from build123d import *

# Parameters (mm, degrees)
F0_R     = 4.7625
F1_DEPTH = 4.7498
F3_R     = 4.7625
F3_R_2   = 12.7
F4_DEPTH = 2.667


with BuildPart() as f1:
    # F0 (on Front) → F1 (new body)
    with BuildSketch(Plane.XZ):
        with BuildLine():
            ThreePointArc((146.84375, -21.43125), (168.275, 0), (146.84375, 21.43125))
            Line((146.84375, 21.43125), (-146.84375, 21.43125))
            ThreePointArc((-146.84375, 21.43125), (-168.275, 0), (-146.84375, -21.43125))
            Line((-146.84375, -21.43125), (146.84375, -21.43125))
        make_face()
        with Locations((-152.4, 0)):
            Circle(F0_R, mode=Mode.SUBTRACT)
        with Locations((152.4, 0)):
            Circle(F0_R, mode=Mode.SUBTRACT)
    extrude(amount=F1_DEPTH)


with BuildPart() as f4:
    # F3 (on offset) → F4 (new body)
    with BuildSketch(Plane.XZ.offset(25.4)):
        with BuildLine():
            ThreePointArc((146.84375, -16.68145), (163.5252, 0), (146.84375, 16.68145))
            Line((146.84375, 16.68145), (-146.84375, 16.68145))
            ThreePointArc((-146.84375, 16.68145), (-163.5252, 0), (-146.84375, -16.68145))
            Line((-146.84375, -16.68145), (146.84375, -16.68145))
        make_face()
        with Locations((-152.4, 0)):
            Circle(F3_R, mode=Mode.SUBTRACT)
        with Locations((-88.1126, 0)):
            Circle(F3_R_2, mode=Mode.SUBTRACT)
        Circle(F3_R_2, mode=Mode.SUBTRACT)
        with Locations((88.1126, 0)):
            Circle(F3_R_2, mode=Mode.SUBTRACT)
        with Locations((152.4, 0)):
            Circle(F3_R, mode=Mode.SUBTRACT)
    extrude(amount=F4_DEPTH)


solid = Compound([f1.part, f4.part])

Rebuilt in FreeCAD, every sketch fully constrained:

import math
import FreeCAD as App
import Part
import Sketcher
from FreeCAD import Vector
Q = App.Units.Quantity

doc = App.newDocument("Part")
body = doc.addObject("PartDesign::Body", "Body")

sketch1 = body.newObject("Sketcher::SketchObject", "Sketch")
sketch1.AttachmentSupport = (doc.getObject("XZ_Plane"), [""])
sketch1.MapMode = "FlatFace"
sketch1.addGeometry([
    Part.ArcOfCircle(Part.Circle(Vector(146.84375, 0, 0), Vector(0, 0, 1), 21.43125), math.radians(-90), math.radians(90)),
    Part.LineSegment(Vector(146.84375, 21.43125, 0), Vector(-146.84375, 21.43125, 0)),
    Part.ArcOfCircle(Part.Circle(Vector(-146.84375, 0, 0), Vector(0, 0, 1), 21.43125), math.radians(90), math.radians(270)),
    Part.LineSegment(Vector(-146.84375, -21.43125, 0), Vector(146.84375, -21.43125, 0)),
    Part.Circle(Vector(-152.4, 0, 0), Vector(0, 0, 1), 4.7625),
    Part.Circle(Vector(152.4, 0, 0), Vector(0, 0, 1), 4.7625),
], False)
sketch1.addConstraint([
    Sketcher.Constraint("Tangent", 0, 2, 1, 1),
    Sketcher.Constraint("Tangent", 1, 2, 2, 1),
    Sketcher.Constraint("Tangent", 2, 2, 3, 1),
    Sketcher.Constraint("Tangent", 3, 2, 0, 1),
    Sketcher.Constraint("Horizontal", 1),
    Sketcher.Constraint("Horizontal", 3),
    Sketcher.Constraint("Equal", 4, 5),
    Sketcher.Constraint("Symmetric", 0, 3, 2, 3, -1, 1),
    Sketcher.Constraint("Symmetric", 4, 3, 5, 3, -1, 1),
    Sketcher.Constraint("PointOnObject", 4, 3, -1),
    Sketcher.Constraint("Diameter", 4, Q("0.375 in")),
    Sketcher.Constraint("DistanceX", 4, 3, -1, 1, Q("6 in")),
    Sketcher.Constraint("Radius", 0, Q("0.84375 in")),
    Sketcher.Constraint("DistanceX", 1, 2, 1, 1, Q("11.5625 in")),
])
pad1 = body.newObject("PartDesign::Pad", "Pad")
pad1.Profile = sketch1
pad1.Length = Q("0.187 in")
body2 = doc.addObject("PartDesign::Body", "Body001")

sketch2 = body2.newObject("Sketcher::SketchObject", "Sketch001")
sketch2.AttachmentSupport = (doc.getObject("XZ_Plane001"), [""])
sketch2.MapMode = "FlatFace"
sketch2.AttachmentOffset = App.Placement(Vector(0, 0, 1 * 25.4), App.Rotation())
sketch2.addGeometry([
    Part.ArcOfCircle(Part.Circle(Vector(146.84375, 0, 0), Vector(0, 0, 1), 16.68145), math.radians(-90), math.radians(90)),
    Part.LineSegment(Vector(146.84375, 16.68145, 0), Vector(-146.84375, 16.68145, 0)),
    Part.ArcOfCircle(Part.Circle(Vector(-146.84375, 0, 0), Vector(0, 0, 1), 16.68145), math.radians(90), math.radians(270)),
    Part.LineSegment(Vector(-146.84375, -16.68145, 0), Vector(146.84375, -16.68145, 0)),
    Part.Circle(Vector(-152.4, 0, 0), Vector(0, 0, 1), 4.7625),
    Part.Circle(Vector(-88.1126, 0, 0), Vector(0, 0, 1), 12.7),
    Part.Circle(Vector(0, 0, 0), Vector(0, 0, 1), 12.7),
    Part.Circle(Vector(88.1126, 0, 0), Vector(0, 0, 1), 12.7),
    Part.Circle(Vector(152.4, 0, 0), Vector(0, 0, 1), 4.7625),
], False)
sketch2.addConstraint([
    Sketcher.Constraint("Tangent", 0, 2, 1, 1),
    Sketcher.Constraint("Tangent", 1, 2, 2, 1),
    Sketcher.Constraint("Tangent", 2, 2, 3, 1),
    Sketcher.Constraint("Tangent", 3, 2, 0, 1),
    Sketcher.Constraint("Horizontal", 1),
    Sketcher.Constraint("Horizontal", 3),
    Sketcher.Constraint("Coincident", 6, 3, -1, 1),
    Sketcher.Constraint("Equal", 5, 6),
    Sketcher.Constraint("Equal", 6, 7),
    Sketcher.Constraint("Equal", 4, 8),
    Sketcher.Constraint("Symmetric", 0, 3, 2, 3, -1, 1),
    Sketcher.Constraint("Symmetric", 5, 3, 7, 3, -1, 1),
    Sketcher.Constraint("Symmetric", 4, 3, 8, 3, -1, 1),
    Sketcher.Constraint("PointOnObject", 4, 3, -1),
    Sketcher.Constraint("PointOnObject", 5, 3, -1),
    Sketcher.Constraint("Diameter", 5, Q("1 in")),
    Sketcher.Constraint("Diameter", 4, Q("0.375 in")),
    Sketcher.Constraint("DistanceX", 4, 3, -1, 1, Q("6 in")),
    Sketcher.Constraint("DistanceX", 1, 2, 1, 1, Q("11.5625 in")),
    Sketcher.Constraint("DistanceX", 5, 3, -1, 1, Q("3.469 in")),
    Sketcher.Constraint("Radius", 0, Q("16.68145 mm")),
])
pad2 = body2.newObject("PartDesign::Pad", "Pad001")
pad2.Profile = sketch2
pad2.Length = Q("0.105 in")

doc.recompute()
